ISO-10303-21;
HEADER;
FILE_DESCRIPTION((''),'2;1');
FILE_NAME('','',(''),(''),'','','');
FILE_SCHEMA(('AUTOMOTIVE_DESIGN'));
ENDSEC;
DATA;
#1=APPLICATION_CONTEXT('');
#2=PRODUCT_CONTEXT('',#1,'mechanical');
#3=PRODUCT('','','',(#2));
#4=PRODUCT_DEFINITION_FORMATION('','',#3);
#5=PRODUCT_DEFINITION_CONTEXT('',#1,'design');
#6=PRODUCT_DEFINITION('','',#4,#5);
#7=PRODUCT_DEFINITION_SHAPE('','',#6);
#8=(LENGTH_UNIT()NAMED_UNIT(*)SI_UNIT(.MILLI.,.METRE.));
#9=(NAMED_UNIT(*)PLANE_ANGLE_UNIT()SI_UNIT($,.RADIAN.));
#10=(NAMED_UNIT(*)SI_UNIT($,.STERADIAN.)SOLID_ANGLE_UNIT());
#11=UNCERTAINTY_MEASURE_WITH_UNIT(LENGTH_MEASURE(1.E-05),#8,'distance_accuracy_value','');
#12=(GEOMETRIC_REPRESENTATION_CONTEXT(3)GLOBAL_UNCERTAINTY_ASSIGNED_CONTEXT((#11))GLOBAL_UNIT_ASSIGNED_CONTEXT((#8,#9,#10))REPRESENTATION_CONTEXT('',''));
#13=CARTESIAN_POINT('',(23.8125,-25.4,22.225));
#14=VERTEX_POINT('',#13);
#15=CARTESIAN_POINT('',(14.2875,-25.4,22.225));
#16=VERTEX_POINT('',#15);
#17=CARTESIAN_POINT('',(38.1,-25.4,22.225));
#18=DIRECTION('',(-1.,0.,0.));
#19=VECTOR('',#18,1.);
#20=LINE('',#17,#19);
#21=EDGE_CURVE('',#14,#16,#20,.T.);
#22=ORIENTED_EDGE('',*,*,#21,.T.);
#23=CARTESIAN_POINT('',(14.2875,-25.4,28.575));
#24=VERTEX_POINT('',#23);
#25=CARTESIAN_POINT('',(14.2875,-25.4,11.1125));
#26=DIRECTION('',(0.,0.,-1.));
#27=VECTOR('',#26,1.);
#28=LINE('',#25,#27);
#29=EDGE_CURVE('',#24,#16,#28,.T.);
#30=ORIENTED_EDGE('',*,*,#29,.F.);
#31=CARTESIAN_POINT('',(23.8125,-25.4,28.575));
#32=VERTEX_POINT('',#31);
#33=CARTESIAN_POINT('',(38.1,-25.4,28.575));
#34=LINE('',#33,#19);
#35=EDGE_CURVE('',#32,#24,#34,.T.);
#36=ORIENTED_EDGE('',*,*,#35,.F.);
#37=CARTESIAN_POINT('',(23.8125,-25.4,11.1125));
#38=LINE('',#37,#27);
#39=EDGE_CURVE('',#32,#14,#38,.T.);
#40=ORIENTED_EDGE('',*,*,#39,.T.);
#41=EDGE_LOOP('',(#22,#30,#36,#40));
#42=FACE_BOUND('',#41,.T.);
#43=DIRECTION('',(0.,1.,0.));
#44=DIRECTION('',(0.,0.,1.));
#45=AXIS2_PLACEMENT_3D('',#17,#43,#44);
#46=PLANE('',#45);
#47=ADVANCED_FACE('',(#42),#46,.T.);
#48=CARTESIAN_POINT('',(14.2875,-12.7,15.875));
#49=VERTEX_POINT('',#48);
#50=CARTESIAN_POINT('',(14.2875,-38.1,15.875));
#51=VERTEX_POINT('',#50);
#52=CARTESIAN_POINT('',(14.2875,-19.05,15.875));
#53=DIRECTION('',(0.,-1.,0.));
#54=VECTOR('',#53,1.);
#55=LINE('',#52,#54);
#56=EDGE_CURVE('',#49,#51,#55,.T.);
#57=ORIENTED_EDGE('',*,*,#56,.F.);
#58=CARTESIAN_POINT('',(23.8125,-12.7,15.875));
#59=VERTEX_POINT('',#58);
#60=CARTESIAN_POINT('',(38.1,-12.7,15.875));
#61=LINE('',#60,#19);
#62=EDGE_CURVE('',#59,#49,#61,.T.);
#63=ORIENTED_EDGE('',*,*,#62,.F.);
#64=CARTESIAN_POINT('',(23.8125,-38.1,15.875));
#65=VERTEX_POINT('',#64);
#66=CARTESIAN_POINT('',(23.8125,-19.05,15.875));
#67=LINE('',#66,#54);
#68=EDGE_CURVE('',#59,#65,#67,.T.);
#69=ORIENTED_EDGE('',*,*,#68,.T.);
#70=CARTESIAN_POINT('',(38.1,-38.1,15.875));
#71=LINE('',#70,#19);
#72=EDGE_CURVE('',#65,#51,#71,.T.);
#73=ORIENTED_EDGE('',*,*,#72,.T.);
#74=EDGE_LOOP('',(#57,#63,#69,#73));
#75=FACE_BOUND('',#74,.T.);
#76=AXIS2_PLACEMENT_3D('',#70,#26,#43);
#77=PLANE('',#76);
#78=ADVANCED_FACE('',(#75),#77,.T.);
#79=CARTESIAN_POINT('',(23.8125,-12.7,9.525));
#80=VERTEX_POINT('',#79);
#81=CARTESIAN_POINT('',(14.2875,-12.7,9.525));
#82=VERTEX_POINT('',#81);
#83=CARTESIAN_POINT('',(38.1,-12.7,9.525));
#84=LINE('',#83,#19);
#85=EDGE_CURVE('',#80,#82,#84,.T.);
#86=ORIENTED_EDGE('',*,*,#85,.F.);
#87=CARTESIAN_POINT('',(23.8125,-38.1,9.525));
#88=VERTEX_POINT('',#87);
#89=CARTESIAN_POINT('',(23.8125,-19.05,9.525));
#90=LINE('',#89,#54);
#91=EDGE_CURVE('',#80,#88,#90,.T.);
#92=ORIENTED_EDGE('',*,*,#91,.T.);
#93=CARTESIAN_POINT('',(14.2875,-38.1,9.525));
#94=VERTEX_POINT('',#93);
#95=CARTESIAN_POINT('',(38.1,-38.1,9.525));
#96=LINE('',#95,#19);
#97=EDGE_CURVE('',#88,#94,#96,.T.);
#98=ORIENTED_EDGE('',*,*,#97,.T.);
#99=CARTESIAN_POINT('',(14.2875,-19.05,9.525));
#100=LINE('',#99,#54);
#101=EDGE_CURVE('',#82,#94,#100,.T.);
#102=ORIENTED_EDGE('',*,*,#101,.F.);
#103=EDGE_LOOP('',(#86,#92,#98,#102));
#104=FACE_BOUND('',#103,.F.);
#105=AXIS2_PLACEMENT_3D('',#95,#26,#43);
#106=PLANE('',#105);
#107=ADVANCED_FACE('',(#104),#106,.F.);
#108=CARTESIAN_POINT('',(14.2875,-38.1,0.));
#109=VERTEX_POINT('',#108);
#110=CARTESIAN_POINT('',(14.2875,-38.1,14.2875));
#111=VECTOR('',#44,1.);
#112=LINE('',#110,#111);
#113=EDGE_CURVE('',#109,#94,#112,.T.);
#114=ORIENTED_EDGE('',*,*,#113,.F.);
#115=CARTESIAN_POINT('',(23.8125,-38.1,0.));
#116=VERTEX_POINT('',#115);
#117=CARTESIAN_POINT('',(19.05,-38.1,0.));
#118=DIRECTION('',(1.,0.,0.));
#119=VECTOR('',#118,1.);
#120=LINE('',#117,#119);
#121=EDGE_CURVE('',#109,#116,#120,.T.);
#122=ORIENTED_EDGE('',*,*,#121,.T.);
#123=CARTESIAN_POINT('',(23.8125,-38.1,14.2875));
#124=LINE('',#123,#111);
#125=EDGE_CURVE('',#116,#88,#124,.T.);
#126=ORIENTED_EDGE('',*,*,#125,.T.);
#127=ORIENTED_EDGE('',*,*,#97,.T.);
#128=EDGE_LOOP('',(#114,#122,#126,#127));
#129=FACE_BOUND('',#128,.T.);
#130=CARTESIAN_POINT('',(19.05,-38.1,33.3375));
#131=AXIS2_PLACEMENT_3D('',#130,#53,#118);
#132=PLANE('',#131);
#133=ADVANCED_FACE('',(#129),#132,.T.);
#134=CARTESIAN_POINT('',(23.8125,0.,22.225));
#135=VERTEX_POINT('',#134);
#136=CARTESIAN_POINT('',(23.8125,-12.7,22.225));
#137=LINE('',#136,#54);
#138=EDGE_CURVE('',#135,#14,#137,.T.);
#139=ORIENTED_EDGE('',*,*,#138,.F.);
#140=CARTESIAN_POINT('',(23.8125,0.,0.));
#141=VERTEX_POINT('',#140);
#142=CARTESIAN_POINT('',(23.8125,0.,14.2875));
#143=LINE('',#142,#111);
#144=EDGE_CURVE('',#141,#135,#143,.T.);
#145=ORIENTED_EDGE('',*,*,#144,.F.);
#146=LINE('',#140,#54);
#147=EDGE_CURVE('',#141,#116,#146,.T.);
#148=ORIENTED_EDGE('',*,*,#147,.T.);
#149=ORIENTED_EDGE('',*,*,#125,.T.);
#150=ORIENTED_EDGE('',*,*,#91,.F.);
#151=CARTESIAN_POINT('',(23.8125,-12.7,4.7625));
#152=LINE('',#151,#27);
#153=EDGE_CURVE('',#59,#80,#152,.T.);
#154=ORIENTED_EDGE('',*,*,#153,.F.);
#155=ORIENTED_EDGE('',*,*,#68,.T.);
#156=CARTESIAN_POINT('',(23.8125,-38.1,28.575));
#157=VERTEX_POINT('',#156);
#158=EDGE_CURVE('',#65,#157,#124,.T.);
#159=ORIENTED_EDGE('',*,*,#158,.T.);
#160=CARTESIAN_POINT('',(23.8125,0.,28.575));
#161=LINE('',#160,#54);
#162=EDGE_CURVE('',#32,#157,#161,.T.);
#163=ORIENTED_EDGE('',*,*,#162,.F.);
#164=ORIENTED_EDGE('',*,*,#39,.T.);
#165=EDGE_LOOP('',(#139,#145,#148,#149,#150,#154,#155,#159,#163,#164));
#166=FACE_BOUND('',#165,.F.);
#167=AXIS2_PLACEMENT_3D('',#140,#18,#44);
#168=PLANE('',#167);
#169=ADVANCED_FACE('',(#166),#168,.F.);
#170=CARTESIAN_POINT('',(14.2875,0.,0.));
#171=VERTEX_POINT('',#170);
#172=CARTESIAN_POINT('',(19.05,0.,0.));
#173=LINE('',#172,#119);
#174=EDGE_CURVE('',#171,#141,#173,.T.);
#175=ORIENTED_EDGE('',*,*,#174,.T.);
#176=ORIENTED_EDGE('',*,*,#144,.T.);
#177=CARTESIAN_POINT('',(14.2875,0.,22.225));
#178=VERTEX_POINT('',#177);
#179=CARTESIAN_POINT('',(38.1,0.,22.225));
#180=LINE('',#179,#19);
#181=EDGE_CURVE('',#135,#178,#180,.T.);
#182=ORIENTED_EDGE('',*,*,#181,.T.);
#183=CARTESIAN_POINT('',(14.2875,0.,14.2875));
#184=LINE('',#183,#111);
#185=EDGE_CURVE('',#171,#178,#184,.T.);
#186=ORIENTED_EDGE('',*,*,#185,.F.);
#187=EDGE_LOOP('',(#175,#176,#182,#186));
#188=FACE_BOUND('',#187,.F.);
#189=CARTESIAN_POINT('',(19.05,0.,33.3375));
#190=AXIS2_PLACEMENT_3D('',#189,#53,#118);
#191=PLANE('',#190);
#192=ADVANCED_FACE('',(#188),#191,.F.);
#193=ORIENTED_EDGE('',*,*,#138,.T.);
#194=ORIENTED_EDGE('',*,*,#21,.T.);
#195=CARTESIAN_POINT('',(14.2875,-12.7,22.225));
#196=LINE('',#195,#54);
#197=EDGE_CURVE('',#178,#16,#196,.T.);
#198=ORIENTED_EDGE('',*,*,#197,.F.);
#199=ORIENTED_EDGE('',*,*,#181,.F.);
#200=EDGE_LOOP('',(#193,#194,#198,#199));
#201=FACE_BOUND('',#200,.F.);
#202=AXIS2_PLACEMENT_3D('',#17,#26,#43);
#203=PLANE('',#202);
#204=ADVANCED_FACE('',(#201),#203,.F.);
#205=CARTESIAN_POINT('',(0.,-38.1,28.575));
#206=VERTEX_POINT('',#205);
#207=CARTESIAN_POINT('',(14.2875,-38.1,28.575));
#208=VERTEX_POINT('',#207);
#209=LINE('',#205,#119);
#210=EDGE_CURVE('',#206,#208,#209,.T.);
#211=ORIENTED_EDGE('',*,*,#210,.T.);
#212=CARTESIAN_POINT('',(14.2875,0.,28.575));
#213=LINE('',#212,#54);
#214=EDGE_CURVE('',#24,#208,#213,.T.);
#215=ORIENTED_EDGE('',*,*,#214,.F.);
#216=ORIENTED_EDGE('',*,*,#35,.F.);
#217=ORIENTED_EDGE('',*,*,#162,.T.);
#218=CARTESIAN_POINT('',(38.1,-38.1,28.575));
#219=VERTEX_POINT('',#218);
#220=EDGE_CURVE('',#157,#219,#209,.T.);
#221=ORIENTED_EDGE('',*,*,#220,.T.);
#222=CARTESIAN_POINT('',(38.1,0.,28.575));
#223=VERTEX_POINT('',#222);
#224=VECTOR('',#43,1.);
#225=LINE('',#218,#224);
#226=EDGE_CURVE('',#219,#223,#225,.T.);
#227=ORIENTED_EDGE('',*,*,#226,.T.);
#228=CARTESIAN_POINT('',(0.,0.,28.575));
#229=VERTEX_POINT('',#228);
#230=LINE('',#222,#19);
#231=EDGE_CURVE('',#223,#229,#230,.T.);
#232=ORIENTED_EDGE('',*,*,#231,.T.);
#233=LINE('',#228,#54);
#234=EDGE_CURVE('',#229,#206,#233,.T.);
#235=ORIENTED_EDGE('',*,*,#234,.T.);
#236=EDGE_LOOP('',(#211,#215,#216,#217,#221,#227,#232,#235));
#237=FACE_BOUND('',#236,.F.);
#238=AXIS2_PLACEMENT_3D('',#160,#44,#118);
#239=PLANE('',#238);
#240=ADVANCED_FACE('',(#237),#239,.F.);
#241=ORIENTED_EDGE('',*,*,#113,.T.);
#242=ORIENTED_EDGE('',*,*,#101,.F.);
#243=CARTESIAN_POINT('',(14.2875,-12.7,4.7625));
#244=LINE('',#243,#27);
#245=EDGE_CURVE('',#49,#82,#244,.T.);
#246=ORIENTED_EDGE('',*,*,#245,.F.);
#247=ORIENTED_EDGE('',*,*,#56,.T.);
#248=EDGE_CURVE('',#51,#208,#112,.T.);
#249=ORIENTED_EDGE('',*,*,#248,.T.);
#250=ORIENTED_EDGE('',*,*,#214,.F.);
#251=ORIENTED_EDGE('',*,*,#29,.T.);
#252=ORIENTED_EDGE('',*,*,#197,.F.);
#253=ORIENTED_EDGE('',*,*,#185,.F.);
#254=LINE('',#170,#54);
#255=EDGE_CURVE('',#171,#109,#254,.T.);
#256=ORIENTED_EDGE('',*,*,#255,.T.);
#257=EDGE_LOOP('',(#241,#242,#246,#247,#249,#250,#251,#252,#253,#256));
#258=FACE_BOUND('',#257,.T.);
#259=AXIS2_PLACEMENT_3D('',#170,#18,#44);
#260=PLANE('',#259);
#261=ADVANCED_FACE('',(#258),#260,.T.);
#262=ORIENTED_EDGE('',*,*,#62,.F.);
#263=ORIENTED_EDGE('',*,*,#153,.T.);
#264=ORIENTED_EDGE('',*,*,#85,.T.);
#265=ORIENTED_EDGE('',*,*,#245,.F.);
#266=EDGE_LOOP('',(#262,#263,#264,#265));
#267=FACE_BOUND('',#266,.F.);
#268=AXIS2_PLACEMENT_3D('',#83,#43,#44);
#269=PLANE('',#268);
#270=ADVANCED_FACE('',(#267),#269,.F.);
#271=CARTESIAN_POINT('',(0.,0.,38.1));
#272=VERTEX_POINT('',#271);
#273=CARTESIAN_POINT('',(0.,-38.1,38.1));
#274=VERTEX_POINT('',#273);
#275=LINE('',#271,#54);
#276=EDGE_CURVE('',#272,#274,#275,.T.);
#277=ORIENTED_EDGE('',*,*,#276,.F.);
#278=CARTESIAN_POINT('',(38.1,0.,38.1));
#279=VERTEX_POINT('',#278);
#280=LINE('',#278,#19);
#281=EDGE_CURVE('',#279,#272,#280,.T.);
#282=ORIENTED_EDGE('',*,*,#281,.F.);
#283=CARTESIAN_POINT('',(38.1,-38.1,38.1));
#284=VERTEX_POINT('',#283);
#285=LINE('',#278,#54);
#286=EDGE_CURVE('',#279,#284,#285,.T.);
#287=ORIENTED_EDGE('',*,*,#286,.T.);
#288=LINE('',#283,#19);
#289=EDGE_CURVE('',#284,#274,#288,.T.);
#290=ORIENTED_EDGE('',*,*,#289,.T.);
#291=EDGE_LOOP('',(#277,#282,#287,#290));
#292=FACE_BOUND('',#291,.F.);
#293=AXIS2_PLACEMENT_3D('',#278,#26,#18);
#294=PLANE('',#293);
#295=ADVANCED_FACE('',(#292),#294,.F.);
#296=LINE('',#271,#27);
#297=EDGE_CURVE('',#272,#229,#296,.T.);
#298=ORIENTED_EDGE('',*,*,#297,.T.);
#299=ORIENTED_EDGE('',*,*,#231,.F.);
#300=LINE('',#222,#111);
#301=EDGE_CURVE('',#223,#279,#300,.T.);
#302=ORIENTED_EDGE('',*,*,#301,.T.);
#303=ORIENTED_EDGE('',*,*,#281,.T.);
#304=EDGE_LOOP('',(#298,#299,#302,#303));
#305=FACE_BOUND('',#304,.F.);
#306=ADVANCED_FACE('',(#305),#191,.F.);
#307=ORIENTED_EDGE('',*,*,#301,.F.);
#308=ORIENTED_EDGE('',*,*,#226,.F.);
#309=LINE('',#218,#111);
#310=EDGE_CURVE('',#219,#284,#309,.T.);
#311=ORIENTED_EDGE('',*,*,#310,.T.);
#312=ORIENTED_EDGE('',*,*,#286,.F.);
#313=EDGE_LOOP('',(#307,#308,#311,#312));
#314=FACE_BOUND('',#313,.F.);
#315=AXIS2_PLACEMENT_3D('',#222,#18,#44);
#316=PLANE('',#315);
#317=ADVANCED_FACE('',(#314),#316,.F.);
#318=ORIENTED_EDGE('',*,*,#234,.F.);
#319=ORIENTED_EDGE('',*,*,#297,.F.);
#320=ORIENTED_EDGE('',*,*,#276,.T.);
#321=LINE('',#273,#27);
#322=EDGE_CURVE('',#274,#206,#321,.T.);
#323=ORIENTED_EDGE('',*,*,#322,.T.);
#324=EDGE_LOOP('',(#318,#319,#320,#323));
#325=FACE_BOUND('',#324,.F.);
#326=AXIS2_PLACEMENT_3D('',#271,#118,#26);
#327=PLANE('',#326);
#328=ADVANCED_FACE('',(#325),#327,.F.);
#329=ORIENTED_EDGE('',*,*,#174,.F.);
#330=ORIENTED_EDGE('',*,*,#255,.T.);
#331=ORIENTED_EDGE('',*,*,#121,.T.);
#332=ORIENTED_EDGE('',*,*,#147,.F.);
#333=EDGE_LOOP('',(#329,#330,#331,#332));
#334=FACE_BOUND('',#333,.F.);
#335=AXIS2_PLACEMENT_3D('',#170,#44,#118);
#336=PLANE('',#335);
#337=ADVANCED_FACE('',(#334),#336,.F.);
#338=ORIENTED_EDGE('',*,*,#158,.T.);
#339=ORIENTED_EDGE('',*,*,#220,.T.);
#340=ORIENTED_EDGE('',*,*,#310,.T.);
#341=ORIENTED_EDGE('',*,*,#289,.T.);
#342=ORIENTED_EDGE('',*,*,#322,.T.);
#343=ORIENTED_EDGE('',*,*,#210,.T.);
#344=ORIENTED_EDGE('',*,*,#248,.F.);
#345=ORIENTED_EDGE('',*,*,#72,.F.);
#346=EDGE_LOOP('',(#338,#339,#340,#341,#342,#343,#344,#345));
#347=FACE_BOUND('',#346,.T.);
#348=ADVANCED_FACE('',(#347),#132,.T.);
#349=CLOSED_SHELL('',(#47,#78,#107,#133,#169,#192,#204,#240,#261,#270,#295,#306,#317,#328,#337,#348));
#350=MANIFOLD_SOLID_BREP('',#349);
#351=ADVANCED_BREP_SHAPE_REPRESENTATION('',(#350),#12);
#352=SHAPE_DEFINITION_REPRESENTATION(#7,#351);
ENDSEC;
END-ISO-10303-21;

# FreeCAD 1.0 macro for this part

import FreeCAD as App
import Part
import Sketcher

V = App.Vector
Q = App.Units.Quantity


def add_polygon(sketch, points):
    """Adds a closed chain of lines whose ends are joined by coincident constraints."""
    first, n = sketch.GeometryCount, len(points)
    for a, b in zip(points, points[1:] + points[:1]):
        sketch.addGeometry(Part.LineSegment(App.Vector(*a, 0), App.Vector(*b, 0)), False)
    for i in range(n):
        sketch.addConstraint(Sketcher.Constraint("Coincident", first + i, 2, first + (i + 1) % n, 1))

doc = App.newDocument("Part")
body = doc.addObject("PartDesign::Body", "Body")

# Sketch on XZ plane
sketch1 = body.newObject("Sketcher::SketchObject", "Sketch")
sketch1.AttachmentSupport = (doc.getObject("XZ_Plane"), [""])
sketch1.MapMode = "FlatFace"
add_polygon(sketch1, [(38.1, 38.1), (0, 38.1), (0, 28.575), (14.2875, 28.575), (14.2875, 0), (23.8125, 0), (23.8125, 28.575), (38.1, 28.575)])  # lines 0-7
sketch1.addConstraint([
    Sketcher.Constraint("Horizontal", 0),
    Sketcher.Constraint("Vertical", 1),
    Sketcher.Constraint("Horizontal", 2),
    Sketcher.Constraint("Vertical", 3),
    Sketcher.Constraint("Horizontal", 4),
    Sketcher.Constraint("Vertical", 5),
    Sketcher.Constraint("Horizontal", 6),
    Sketcher.Constraint("Vertical", 7),
    Sketcher.Constraint("PointOnObject", 0, 2, -2),
    Sketcher.Constraint("PointOnObject", 3, 2, -1),
    Sketcher.Constraint("Horizontal", 2, 2, 5, 2),
    Sketcher.Constraint("Equal", 2, 6),
    Sketcher.Constraint("Equal", 4, 1),
    Sketcher.Constraint("DistanceX", 0, 2, 0, 1, Q("1.5 in")),
    Sketcher.Constraint("DistanceY", -1, 1, 0, 2, Q("1.5 in")),
    Sketcher.Constraint("DistanceX", 2, 1, 2, 2, Q("0.5625 in")),
])
pad1 = body.newObject("PartDesign::Pad", "Pad")
pad1.Profile = sketch1
pad1.Length = Q("1.5 in")

# Sketch on YZ plane
sketch2 = body.newObject("Sketcher::SketchObject", "Sketch001")
sketch2.AttachmentSupport = (doc.getObject("YZ_Plane"), [""])
sketch2.MapMode = "FlatFace"
sketch2.AttachmentOffset = App.Placement(V(0, 0, 1.5 * 25.4), App.Rotation())
add_polygon(sketch2, [(-38.1, 15.875), (-38.1, 9.525), (-12.7, 9.525), (-12.7, 15.875)])  # lines 0-3
add_polygon(sketch2, [(-25.4, 28.575), (-25.4, 22.225), (0, 22.225), (0, 28.575)])  # lines 4-7
sketch2.addConstraint([
    Sketcher.Constraint("Vertical", 0),
    Sketcher.Constraint("Horizontal", 1),
    Sketcher.Constraint("Vertical", 2),
    Sketcher.Constraint("Horizontal", 3),
    Sketcher.Constraint("Vertical", 4),
    Sketcher.Constraint("Horizontal", 5),
    Sketcher.Constraint("Vertical", 6),
    Sketcher.Constraint("Horizontal", 7),
    Sketcher.Constraint("PointOnObject", 5, 2, -2),
    Sketcher.Constraint("Equal", 3, 5),
    Sketcher.Constraint("Equal", 2, 4),
    Sketcher.Constraint("DistanceX", 1, 1, 1, 2, Q("1 in")),
    Sketcher.Constraint("DistanceY", 0, 2, 0, 1, Q("0.25 in")),
    Sketcher.Constraint("DistanceX", 0, 2, -1, 1, Q("1.5 in")),
    Sketcher.Constraint("DistanceY", 1, 2, 4, 2, Q("0.5 in")),
    Sketcher.Constraint("DistanceY", -1, 1, 0, 2, Q("0.375 in")),
])
pocket1 = body.newObject("PartDesign::Pocket", "Pocket")
pocket1.Profile = sketch2
pocket1.Length = Q("1 in")

doc.recompute()
